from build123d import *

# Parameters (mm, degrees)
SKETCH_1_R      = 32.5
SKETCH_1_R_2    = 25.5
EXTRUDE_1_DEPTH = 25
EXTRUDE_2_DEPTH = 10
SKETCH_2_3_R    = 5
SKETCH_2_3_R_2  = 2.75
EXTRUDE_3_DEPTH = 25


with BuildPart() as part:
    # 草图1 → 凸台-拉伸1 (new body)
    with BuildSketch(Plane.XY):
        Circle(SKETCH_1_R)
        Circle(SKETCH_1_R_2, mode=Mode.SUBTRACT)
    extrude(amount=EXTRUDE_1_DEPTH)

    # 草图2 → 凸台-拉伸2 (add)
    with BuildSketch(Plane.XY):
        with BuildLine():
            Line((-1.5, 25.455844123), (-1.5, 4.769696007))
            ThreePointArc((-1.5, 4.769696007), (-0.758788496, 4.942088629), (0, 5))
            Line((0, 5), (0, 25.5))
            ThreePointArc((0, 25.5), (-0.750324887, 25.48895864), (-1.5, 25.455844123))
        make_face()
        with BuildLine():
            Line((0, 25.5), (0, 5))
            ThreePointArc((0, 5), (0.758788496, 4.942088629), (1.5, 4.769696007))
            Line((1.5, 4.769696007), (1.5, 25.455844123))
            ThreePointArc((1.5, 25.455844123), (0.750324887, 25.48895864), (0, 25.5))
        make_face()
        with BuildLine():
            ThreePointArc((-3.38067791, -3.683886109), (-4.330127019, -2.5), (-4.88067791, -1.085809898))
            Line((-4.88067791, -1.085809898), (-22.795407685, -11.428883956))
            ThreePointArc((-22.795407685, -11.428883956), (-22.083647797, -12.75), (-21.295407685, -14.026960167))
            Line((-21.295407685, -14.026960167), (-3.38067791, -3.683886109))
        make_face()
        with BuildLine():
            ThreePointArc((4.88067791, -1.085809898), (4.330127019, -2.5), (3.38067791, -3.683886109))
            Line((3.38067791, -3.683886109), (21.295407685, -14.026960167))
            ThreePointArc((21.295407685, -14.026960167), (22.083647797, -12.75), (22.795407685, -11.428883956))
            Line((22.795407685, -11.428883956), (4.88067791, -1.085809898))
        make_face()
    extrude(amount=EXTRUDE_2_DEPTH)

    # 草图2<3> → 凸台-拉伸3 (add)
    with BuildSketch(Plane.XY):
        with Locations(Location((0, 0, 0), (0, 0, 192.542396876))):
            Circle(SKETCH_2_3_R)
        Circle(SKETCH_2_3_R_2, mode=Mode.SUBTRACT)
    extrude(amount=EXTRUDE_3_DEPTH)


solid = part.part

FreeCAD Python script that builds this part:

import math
import FreeCAD as App
import Part
import Sketcher

V = App.Vector
Q = App.Units.Quantity

doc = App.newDocument("Part")
body = doc.addObject("PartDesign::Body", "Body")

sketch1 = body.newObject("Sketcher::SketchObject", "Sketch")
sketch1.AttachmentSupport = (doc.getObject("XY_Plane"), [""])
sketch1.MapMode = "FlatFace"
sketch1.addGeometry([
    Part.Circle(V(0, 0, 0), V(0, 0, 1), 32.5),
    Part.Circle(V(0, 0, 0), V(0, 0, 1), 25.5),
], False)
sketch1.addConstraint([
    Sketcher.Constraint("Coincident", 0, 3, -1, 1),
    Sketcher.Constraint("Coincident", 1, 3, -1, 1),
    Sketcher.Constraint("Diameter", 0, Q("65 mm")),
    Sketcher.Constraint("Diameter", 1, Q("51 mm")),
])
pad1 = body.newObject("PartDesign::Pad", "Pad")
pad1.Profile = sketch1
pad1.Length = 25

sketch2 = body.newObject("Sketcher::SketchObject", "Sketch001")
sketch2.AttachmentSupport = (doc.getObject("XY_Plane"), [""])
sketch2.MapMode = "FlatFace"
sketch2.addGeometry([
    Part.LineSegment(V(-1.5, 25.455844, 0), V(-1.5, 4.769696, 0)),
    Part.ArcOfCircle(Part.Circle(V(0, 0, 0), V(0, 0, 1), 5), math.radians(90), math.radians(107.457603)),
    Part.ArcOfCircle(Part.Circle(V(0, 0, 0), V(0, 0, 1), 5), math.radians(72.542397), math.radians(90)),
    Part.LineSegment(V(1.5, 4.769696, 0), V(1.5, 25.455844, 0)),
    Part.ArcOfCircle(Part.Circle(V(0, -0.000001, 0), V(0, 0, 1), 25.500001), math.radians(86.627713), math.radians(90)),
    Part.ArcOfCircle(Part.Circle(V(0, -0.000001, 0), V(0, 0, 1), 25.500001), math.radians(90), math.radians(93.372287)),
    Part.ArcOfCircle(Part.Circle(V(0, 0, 0), V(0, 0, 1), 5), math.radians(-167.457603), math.radians(-132.542397)),
    Part.LineSegment(V(-4.880678, -1.08581, 0), V(-22.795408, -11.428884, 0)),
    Part.ArcOfCircle(Part.Circle(V(0, 0, 0), V(0, 0, 1), 25.5), math.radians(-153.372287), math.radians(-146.627713)),
    Part.LineSegment(V(-21.295408, -14.02696, 0), V(-3.380678, -3.683886, 0)),
    Part.ArcOfCircle(Part.Circle(V(0, 0, 0), V(0, 0, 1), 5), math.radians(-47.457603), math.radians(-12.542397)),
    Part.LineSegment(V(3.380678, -3.683886, 0), V(21.295408, -14.02696, 0)),
    Part.ArcOfCircle(Part.Circle(V(0, 0, 0), V(0, 0, 1), 25.5), math.radians(-33.372287), math.radians(-26.627713)),
    Part.LineSegment(V(22.795408, -11.428884, 0), V(4.880678, -1.08581, 0)),
], False)
sketch2.addConstraint([
    Sketcher.Constraint("Coincident", 0, 2, 1, 2),
    Sketcher.Constraint("Tangent", 1, 1, 2, 2),
    Sketcher.Constraint("Coincident", 2, 1, 3, 1),
    Sketcher.Constraint("Coincident", 3, 2, 4, 1),
    Sketcher.Constraint("Tangent", 4, 2, 5, 1),
    Sketcher.Constraint("Coincident", 5, 2, 0, 1),
    Sketcher.Constraint("Coincident", 6, 1, 7, 1),
    Sketcher.Constraint("Coincident", 7, 2, 8, 1),
    Sketcher.Constraint("Coincident", 8, 2, 9, 1),
    Sketcher.Constraint("Coincident", 9, 2, 6, 2),
    Sketcher.Constraint("Coincident", 10, 1, 11, 1),
    Sketcher.Constraint("Coincident", 11, 2, 12, 1),
    Sketcher.Constraint("Coincident", 12, 2, 13, 1),
    Sketcher.Constraint("Coincident", 13, 2, 10, 2),
    Sketcher.Constraint("Vertical", 0),
    Sketcher.Constraint("Vertical", 3),
    Sketcher.Constraint("Coincident", 1, 3, -1, 1),
    Sketcher.Constraint("Coincident", 4, 3, -1, 1),
    Sketcher.Constraint("Coincident", 6, 3, -1, 1),
    Sketcher.Constraint("Coincident", 8, 3, -1, 1),
    Sketcher.Constraint("Coincident", 10, 3, -1, 1),
    Sketcher.Constraint("Coincident", 12, 3, -1, 1),
    Sketcher.Constraint("Equal", 1, 2),
    Sketcher.Constraint("Equal", 4, 5),
    Sketcher.Constraint("Equal", 2, 6),
    Sketcher.Constraint("Equal", 5, 8),
    Sketcher.Constraint("Equal", 6, 10),
    Sketcher.Constraint("Equal", 8, 12),
    Sketcher.Constraint("PointOnObject", 1, 1, -2),
    Sketcher.Constraint("PointOnObject", 4, 2, -2),
    Sketcher.Constraint("Parallel", 7, 9),
    Sketcher.Constraint("Parallel", 11, 13),
    Sketcher.Constraint("Horizontal", 0, 2, 2, 1),
    Sketcher.Constraint("Horizontal", 9, 2, 10, 1),
    Sketcher.Constraint("Horizontal", 8, 2, 11, 2),
    Sketcher.Constraint("Horizontal", 7, 2, 12, 2),
    Sketcher.Constraint("Equal", 7, 9),
    Sketcher.Constraint("Radius", 1, Q("5 mm")),
    Sketcher.Constraint("Radius", 4, Q("25.500001 mm")),
    Sketcher.Constraint("Angle", 7, Q("-150 deg")),
    Sketcher.Constraint("DistanceX", 0, 2, 2, 1, Q("3 mm")),
    Sketcher.Constraint("DistanceX", 7, 2, 8, 2, Q("1.5 mm")),
])
pad2 = body.newObject("PartDesign::Pad", "Pad001")
pad2.Profile = sketch2
pad2.Length = 10

sketch3 = body.newObject("Sketcher::SketchObject", "Sketch002")
sketch3.AttachmentSupport = (doc.getObject("XY_Plane"), [""])
sketch3.MapMode = "FlatFace"
sketch3.addGeometry([
    Part.Circle(V(0, 0, 0), V(0, 0, 1), 5),
    Part.Circle(V(0, 0, 0), V(0, 0, 1), 2.75),
], False)
sketch3.addConstraint([
    Sketcher.Constraint("Coincident", 0, 3, -1, 1),
    Sketcher.Constraint("Coincident", 1, 3, -1, 1),
    Sketcher.Constraint("Diameter", 0, Q("10 mm")),
    Sketcher.Constraint("Diameter", 1, Q("5.5 mm")),
])
pad3 = body.newObject("PartDesign::Pad", "Pad002")
pad3.Profile = sketch3
pad3.Length = 25

doc.recompute()
